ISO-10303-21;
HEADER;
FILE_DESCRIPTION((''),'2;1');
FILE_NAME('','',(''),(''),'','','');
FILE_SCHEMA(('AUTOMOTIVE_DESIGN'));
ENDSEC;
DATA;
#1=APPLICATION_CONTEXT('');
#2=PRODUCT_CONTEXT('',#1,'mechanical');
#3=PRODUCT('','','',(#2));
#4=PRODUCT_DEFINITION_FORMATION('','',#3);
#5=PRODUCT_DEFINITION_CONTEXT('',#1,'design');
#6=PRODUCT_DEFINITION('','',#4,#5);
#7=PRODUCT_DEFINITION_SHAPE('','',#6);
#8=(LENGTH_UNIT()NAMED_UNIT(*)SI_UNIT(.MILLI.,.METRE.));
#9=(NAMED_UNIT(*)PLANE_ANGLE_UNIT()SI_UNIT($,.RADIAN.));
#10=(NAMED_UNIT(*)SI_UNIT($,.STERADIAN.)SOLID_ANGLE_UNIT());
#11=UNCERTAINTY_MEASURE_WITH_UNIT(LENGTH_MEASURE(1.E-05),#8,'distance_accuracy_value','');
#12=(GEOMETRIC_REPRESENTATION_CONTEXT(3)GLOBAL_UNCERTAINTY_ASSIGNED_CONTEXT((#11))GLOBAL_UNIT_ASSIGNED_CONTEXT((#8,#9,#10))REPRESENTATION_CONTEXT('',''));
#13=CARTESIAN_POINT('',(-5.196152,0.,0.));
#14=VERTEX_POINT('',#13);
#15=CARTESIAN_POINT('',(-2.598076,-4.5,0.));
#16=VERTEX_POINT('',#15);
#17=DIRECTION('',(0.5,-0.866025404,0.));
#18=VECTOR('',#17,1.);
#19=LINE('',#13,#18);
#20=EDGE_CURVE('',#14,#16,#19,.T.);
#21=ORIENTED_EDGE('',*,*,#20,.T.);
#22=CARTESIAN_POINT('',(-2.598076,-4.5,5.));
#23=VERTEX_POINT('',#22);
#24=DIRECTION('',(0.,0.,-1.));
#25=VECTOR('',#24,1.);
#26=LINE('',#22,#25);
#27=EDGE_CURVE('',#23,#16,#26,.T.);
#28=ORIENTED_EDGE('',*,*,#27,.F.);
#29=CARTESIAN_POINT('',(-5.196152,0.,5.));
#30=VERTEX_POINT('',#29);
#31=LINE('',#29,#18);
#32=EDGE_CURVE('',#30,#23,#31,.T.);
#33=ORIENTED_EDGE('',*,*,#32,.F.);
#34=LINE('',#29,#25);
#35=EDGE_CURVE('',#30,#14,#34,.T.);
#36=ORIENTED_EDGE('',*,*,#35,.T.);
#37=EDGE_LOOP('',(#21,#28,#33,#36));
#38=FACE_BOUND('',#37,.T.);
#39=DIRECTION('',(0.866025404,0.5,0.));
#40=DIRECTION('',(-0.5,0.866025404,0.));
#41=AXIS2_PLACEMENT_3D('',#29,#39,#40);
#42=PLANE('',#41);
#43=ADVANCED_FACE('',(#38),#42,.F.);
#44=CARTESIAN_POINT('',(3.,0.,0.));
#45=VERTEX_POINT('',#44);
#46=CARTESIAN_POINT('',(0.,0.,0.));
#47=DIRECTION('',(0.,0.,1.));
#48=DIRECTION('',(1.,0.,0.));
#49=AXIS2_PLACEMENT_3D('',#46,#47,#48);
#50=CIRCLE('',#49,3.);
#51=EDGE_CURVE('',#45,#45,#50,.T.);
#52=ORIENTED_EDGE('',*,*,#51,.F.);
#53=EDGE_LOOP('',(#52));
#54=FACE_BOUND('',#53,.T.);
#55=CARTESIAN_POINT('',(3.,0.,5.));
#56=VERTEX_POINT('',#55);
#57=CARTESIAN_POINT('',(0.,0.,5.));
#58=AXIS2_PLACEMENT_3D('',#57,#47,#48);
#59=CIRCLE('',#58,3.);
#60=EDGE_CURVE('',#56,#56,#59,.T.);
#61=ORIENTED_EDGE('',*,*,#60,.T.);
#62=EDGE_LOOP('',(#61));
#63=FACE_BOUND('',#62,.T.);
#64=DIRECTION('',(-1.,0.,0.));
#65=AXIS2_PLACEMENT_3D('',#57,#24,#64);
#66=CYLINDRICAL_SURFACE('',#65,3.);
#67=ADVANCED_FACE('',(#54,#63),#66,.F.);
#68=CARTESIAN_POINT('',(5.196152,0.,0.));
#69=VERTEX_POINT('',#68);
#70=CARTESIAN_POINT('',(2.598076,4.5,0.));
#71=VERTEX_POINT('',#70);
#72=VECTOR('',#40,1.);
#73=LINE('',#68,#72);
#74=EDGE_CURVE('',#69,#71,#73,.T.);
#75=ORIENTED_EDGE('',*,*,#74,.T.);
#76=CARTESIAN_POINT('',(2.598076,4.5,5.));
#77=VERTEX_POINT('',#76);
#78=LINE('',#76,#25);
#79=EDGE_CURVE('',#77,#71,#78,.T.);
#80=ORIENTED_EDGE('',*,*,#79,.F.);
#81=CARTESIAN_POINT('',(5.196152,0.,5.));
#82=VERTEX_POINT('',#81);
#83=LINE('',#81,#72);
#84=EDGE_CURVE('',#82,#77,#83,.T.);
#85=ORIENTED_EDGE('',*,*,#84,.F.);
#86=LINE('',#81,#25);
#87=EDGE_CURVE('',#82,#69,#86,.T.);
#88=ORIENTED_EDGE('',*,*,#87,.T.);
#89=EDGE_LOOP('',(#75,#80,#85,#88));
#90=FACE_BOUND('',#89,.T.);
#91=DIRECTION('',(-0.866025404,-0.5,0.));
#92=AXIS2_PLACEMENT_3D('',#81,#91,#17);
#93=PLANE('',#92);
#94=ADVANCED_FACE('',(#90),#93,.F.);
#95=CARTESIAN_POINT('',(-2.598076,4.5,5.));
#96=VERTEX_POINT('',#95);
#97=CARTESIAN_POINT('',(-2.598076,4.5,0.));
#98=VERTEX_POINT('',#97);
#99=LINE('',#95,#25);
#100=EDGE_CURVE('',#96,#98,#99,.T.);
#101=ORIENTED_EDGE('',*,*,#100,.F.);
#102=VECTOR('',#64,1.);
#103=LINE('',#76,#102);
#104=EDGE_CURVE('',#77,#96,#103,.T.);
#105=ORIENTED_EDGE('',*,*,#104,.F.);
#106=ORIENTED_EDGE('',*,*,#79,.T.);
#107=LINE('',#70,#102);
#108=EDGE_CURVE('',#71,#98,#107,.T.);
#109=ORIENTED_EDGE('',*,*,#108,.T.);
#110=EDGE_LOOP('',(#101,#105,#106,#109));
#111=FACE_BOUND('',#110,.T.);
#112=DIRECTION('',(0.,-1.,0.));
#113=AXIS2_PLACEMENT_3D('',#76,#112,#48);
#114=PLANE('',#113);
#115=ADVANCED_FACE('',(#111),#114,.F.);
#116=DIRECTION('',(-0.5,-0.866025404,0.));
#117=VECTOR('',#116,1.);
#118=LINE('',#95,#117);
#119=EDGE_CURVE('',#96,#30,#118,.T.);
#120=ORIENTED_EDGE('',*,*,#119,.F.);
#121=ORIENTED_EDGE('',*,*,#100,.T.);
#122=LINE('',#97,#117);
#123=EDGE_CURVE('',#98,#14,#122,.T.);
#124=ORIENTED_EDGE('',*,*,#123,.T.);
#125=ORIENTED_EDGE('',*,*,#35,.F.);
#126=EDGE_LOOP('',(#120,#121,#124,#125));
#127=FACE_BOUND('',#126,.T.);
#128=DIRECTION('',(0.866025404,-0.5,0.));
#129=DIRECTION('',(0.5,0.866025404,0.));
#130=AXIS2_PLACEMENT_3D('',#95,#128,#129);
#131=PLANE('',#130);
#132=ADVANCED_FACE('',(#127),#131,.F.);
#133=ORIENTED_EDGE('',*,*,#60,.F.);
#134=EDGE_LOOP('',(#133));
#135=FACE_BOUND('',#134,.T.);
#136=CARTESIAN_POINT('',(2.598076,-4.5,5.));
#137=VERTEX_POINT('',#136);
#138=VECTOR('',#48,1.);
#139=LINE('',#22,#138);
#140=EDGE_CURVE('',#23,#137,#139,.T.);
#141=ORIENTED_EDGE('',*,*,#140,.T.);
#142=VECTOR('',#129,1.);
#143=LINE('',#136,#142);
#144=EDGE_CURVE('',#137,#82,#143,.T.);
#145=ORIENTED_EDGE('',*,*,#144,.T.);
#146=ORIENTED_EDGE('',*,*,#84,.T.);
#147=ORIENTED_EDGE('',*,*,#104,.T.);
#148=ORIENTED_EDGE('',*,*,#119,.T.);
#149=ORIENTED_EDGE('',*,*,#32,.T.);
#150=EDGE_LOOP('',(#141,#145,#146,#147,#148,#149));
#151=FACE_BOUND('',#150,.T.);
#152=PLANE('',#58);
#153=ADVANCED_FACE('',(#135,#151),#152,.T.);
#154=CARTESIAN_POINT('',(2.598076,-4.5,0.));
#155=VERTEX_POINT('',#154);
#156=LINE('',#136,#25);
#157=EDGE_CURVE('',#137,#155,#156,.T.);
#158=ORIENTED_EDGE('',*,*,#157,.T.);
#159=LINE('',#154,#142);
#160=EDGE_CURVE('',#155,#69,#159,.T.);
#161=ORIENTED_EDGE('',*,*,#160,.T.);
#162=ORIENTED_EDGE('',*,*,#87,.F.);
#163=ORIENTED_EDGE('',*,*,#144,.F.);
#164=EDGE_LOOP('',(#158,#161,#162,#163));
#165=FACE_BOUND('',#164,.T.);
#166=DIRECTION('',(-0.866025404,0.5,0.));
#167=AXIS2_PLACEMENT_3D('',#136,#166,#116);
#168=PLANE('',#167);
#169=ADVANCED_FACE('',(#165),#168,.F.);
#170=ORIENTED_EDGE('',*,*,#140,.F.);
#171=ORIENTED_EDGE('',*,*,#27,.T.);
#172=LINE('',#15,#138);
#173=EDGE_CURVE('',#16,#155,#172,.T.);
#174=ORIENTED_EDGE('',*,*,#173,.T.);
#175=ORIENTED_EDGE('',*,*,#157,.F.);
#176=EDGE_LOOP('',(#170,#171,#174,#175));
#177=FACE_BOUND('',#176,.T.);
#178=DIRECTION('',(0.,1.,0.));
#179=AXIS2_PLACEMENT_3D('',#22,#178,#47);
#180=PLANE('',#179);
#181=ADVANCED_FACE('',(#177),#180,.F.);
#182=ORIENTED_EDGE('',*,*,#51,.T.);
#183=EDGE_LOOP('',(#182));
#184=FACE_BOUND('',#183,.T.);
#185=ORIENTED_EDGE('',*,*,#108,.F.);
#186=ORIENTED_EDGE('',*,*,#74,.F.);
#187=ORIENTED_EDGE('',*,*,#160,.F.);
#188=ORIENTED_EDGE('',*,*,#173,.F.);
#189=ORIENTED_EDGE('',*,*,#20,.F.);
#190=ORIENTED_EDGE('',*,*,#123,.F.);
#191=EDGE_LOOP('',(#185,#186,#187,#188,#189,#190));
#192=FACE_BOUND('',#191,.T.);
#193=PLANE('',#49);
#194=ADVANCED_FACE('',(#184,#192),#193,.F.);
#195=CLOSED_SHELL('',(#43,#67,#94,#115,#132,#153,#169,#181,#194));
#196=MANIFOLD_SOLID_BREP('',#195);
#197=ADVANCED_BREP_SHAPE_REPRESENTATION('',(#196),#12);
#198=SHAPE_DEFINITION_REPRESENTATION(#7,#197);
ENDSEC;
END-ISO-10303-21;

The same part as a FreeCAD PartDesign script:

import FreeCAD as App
import Part
import Sketcher
from FreeCAD import Vector
Q = App.Units.Quantity


def add_polygon(sketch, points):
    """Adds a closed chain of lines whose ends are joined by coincident constraints."""
    first, n = sketch.GeometryCount, len(points)
    for a, b in zip(points, points[1:] + points[:1]):
        sketch.addGeometry(Part.LineSegment(App.Vector(*a, 0), App.Vector(*b, 0)), False)
    for i in range(n):
        sketch.addConstraint(Sketcher.Constraint("Coincident", first + i, 2, first + (i + 1) % n, 1))

doc = App.newDocument("Part")
body = doc.addObject("PartDesign::Body", "Body")

# Sketch on XY plane
sketch1 = body.newObject("Sketcher::SketchObject", "Sketch")
sketch1.AttachmentSupport = (doc.getObject("XY_Plane"), [""])
sketch1.MapMode = "FlatFace"
add_polygon(sketch1, [(2.6, -4.5), (5.2, 0), (2.6, 4.5), (-2.6, 4.5), (-5.2, 0), (-2.6, -4.5)])  # lines 0-5
sketch1.addGeometry(Part.Circle(Vector(0, 0, 0), Vector(0, 0, 1), 3), False)  # 6
sketch1.addConstraint([
    Sketcher.Constraint("Horizontal", 2),
    Sketcher.Constraint("Horizontal", 5),
    Sketcher.Constraint("Coincident", 6, 3, -1, 1),
    Sketcher.Constraint("Symmetric", 0, 2, 3, 2, -1, 1),
    Sketcher.Constraint("Symmetric", 1, 2, 4, 2, -1, 1),
    Sketcher.Constraint("PointOnObject", 0, 2, -1),
    Sketcher.Constraint("Parallel", 0, 3),
    Sketcher.Constraint("Vertical", 2, 2, 4, 2),
    Sketcher.Constraint("Diameter", 6, Q("6 mm")),
    Sketcher.Constraint("Angle", 0, Q("60 deg")),
    Sketcher.Constraint("DistanceY", 4, 2, 2, 2, Q("9 mm")),
    Sketcher.Constraint("DistanceX", 2, 2, 2, 1, Q("5.196152 mm")),
])
pad1 = body.newObject("PartDesign::Pad", "Pad")
pad1.Profile = sketch1
pad1.Length = 5

doc.recompute()
